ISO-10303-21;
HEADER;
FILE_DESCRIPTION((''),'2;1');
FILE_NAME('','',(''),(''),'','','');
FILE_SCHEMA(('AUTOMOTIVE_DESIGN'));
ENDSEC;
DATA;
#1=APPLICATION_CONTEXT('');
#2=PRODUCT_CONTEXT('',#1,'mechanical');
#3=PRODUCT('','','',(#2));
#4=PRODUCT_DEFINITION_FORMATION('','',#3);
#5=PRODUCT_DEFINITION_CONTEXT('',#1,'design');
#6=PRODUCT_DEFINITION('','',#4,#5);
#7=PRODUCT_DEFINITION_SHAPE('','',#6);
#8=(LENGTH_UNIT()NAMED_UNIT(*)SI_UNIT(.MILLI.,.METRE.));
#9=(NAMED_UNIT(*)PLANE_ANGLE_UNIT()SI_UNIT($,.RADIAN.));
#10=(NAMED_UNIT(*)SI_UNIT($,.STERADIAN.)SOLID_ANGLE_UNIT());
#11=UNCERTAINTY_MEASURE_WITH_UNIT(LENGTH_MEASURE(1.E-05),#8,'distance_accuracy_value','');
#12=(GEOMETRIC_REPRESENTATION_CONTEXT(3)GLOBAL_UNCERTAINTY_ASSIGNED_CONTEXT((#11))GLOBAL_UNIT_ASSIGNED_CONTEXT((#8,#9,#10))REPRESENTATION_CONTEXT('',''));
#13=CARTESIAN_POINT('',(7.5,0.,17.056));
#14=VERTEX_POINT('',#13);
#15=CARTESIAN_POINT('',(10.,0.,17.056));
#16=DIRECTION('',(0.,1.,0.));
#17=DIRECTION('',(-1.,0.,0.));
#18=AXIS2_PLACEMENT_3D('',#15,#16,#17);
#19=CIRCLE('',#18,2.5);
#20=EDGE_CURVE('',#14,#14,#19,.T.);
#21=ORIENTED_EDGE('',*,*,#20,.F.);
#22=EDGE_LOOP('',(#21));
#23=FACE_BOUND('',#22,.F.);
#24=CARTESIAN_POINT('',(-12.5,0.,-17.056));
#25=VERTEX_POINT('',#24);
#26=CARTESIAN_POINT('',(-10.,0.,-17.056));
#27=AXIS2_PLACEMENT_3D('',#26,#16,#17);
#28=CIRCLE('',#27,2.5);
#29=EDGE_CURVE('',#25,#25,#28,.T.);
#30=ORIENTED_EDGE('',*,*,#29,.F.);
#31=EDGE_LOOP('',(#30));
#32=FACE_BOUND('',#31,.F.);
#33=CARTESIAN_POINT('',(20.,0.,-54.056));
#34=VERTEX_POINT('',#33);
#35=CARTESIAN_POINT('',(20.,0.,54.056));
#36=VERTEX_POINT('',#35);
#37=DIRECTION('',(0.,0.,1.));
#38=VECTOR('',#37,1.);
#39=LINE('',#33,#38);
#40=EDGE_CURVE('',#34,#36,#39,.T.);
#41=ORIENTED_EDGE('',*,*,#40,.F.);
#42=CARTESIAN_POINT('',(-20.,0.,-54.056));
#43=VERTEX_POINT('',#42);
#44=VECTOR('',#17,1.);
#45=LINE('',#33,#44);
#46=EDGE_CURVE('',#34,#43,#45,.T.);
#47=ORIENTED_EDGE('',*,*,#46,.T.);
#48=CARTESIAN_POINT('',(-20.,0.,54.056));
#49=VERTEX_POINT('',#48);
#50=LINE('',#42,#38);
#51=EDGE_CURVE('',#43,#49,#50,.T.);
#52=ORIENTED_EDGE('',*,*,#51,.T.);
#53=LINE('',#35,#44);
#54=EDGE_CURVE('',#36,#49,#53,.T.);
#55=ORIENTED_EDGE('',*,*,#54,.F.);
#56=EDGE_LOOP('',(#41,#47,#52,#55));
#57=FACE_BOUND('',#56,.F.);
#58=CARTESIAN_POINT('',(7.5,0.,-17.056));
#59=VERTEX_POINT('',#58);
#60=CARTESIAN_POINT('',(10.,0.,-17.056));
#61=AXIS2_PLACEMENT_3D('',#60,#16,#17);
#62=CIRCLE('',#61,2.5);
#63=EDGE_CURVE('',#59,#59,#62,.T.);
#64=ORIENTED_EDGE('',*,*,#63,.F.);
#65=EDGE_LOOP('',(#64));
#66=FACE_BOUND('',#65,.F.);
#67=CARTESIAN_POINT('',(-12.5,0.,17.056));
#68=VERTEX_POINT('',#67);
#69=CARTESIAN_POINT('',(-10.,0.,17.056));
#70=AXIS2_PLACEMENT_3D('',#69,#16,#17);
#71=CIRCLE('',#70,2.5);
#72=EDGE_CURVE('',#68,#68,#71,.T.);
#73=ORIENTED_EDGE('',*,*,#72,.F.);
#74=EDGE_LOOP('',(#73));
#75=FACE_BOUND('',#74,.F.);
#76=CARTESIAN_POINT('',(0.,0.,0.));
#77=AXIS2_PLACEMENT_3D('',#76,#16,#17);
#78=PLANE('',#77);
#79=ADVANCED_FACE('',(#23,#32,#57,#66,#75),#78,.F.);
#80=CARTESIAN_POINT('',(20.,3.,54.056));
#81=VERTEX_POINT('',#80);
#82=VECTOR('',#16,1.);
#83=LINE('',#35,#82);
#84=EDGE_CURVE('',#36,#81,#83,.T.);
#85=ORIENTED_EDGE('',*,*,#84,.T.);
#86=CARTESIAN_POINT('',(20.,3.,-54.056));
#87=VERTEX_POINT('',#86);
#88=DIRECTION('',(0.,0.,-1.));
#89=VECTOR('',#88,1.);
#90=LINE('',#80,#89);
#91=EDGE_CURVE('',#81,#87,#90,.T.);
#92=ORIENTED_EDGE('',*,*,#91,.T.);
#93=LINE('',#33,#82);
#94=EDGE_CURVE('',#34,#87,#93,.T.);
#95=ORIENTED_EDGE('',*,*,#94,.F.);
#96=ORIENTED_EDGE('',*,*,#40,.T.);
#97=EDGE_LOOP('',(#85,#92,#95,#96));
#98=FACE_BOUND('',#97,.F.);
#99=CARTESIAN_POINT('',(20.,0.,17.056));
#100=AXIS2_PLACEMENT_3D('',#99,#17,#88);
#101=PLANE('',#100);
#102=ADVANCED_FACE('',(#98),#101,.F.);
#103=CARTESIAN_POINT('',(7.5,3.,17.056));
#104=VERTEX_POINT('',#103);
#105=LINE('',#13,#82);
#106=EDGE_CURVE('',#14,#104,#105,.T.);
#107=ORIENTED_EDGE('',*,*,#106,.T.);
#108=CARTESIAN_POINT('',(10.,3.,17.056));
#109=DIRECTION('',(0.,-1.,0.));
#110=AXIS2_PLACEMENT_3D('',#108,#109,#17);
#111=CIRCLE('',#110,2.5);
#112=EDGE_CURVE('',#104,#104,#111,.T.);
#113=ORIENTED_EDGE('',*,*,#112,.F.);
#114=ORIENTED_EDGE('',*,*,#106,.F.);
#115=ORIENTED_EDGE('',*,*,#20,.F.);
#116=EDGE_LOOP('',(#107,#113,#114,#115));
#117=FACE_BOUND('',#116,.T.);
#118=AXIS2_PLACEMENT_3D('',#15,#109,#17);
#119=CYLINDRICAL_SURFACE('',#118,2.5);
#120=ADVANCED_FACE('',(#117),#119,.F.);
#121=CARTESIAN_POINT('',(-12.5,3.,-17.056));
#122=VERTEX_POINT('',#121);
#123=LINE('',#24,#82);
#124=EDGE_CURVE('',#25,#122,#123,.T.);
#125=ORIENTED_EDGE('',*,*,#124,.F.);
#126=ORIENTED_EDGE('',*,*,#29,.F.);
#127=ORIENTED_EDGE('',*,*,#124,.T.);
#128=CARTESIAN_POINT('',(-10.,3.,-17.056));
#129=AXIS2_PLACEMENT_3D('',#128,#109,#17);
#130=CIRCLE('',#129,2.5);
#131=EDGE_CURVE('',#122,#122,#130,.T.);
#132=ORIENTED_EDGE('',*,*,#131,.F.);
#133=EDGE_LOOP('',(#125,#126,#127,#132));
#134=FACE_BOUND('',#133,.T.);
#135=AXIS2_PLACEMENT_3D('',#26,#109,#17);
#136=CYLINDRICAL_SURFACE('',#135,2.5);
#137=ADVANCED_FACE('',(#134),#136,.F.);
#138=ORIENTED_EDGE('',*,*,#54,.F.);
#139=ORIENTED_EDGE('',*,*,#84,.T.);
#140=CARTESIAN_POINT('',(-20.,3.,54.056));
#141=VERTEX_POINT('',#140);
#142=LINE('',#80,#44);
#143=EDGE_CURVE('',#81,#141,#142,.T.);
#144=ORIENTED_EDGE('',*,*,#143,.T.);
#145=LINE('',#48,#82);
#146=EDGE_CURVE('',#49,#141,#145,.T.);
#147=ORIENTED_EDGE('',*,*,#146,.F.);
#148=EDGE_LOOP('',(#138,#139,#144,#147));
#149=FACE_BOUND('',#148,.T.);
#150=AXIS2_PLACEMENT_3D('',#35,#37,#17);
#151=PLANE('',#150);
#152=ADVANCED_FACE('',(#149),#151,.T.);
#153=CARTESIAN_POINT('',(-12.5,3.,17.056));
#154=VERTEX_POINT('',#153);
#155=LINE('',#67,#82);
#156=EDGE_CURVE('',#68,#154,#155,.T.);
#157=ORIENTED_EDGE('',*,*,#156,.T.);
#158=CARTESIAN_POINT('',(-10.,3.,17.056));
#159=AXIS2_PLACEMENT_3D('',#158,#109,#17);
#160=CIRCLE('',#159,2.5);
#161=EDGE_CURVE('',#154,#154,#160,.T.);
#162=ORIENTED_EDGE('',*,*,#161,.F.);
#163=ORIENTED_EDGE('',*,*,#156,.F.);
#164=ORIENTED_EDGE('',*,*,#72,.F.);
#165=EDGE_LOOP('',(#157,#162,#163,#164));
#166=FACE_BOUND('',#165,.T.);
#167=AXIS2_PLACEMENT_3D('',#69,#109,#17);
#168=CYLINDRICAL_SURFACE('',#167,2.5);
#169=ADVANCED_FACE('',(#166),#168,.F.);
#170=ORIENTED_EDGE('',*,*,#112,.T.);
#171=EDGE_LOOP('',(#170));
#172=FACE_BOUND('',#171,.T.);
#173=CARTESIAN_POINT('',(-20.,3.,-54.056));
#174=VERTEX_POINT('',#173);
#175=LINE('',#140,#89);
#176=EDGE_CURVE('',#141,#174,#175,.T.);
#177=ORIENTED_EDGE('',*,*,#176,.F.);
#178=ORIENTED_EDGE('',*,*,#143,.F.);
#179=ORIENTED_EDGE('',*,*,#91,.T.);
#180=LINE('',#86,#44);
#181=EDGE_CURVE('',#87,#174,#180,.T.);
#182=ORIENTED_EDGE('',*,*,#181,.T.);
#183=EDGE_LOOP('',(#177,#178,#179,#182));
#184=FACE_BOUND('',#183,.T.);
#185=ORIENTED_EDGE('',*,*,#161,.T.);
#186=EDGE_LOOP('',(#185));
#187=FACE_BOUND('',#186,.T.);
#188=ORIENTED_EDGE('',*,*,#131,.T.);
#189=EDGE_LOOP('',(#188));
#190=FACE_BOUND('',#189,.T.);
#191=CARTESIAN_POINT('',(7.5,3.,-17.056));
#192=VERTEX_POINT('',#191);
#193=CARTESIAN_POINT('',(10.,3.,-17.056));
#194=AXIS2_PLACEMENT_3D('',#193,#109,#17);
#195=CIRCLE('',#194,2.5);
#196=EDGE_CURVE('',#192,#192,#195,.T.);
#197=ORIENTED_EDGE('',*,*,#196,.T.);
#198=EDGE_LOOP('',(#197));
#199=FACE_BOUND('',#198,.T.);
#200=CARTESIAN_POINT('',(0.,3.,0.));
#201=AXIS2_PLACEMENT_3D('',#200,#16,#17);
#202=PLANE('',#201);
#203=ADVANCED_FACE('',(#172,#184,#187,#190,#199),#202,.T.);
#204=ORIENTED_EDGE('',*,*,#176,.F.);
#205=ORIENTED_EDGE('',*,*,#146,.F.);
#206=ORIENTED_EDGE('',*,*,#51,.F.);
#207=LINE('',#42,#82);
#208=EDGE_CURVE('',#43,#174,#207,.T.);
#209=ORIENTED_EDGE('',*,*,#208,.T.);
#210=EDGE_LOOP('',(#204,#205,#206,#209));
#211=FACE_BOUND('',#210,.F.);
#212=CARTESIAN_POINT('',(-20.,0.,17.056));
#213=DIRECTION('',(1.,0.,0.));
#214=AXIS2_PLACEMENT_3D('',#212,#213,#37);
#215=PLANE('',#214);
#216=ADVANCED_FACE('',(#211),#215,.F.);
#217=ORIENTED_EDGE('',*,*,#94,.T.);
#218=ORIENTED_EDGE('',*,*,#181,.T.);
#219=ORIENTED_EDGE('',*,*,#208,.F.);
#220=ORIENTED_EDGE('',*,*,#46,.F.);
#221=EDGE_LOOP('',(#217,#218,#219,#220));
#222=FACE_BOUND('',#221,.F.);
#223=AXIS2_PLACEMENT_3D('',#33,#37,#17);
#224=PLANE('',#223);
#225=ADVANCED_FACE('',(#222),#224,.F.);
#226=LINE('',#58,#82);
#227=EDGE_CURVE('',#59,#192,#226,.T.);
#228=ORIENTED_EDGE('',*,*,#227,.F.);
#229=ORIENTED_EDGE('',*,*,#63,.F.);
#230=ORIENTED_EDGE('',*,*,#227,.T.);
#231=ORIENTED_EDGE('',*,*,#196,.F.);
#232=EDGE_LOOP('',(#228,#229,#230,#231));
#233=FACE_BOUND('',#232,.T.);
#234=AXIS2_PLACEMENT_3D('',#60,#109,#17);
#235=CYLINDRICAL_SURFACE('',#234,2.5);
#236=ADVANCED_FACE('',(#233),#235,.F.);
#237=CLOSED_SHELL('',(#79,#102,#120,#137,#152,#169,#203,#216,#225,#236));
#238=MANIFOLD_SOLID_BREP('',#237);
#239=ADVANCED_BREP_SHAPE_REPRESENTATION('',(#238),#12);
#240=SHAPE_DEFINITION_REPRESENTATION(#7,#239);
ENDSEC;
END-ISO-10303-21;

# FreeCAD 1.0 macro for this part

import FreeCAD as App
import Part
import Sketcher
from FreeCAD import Vector
Q = App.Units.Quantity

doc = App.newDocument("Part")
body = doc.addObject("PartDesign::Body", "Body")

sketch1 = body.newObject("Sketcher::SketchObject", "Sketch")
sketch1.AttachmentSupport = (doc.getObject("XZ_Plane"), [""])
sketch1.MapMode = "FlatFace"
sketch1.addGeometry(Part.LineSegment(Vector(-20, 54.1, 0), Vector(20, 54.1, 0)), False)
sketch1.addGeometry(Part.LineSegment(Vector(20, 54.1, 0), Vector(20, -54.1, 0)), False)
sketch1.addGeometry(Part.LineSegment(Vector(20, -54.1, 0), Vector(-20, -54.1, 0)), False)
sketch1.addGeometry(Part.LineSegment(Vector(-20, -54.1, 0), Vector(-20, 54.1, 0)), False)
sketch1.addGeometry(Part.Circle(Vector(-10, 17.1, 0), Vector(0, 0, 1), 2.5), False)
sketch1.addGeometry(Part.Circle(Vector(-10, -17.1, 0), Vector(0, 0, 1), 2.5), False)
sketch1.addGeometry(Part.Circle(Vector(10, -17.1, 0), Vector(0, 0, 1), 2.5), False)
sketch1.addGeometry(Part.Circle(Vector(10, 17.1, 0), Vector(0, 0, 1), 2.5), False)
sketch1.addConstraint(Sketcher.Constraint("Coincident", 0, 2, 1, 1))
sketch1.addConstraint(Sketcher.Constraint("Coincident", 1, 2, 2, 1))
sketch1.addConstraint(Sketcher.Constraint("Coincident", 2, 2, 3, 1))
sketch1.addConstraint(Sketcher.Constraint("Coincident", 3, 2, 0, 1))
sketch1.addConstraint(Sketcher.Constraint("Horizontal", 0))
sketch1.addConstraint(Sketcher.Constraint("Vertical", 1))
sketch1.addConstraint(Sketcher.Constraint("Horizontal", 2))
sketch1.addConstraint(Sketcher.Constraint("Vertical", 3))
sketch1.addConstraint(Sketcher.Constraint("Equal", 4, 5))
sketch1.addConstraint(Sketcher.Constraint("Equal", 5, 6))
sketch1.addConstraint(Sketcher.Constraint("Equal", 6, 7))
sketch1.addConstraint(Sketcher.Constraint("Symmetric", 4, 3, 6, 3, -1, 1))
sketch1.addConstraint(Sketcher.Constraint("Symmetric", 5, 3, 7, 3, -1, 1))
sketch1.addConstraint(Sketcher.Constraint("Symmetric", 0, 2, 2, 2, -1, 1))
sketch1.addConstraint(Sketcher.Constraint("Symmetric", 5, 3, 6, 3, -2))
sketch1.addConstraint(Sketcher.Constraint("Diameter", 4, Q("5 mm")))
sketch1.addConstraint(Sketcher.Constraint("DistanceX", 0, 1, 0, 2, Q("40 mm")))
sketch1.addConstraint(Sketcher.Constraint("DistanceX", 4, 3, -1, 1, Q("10 mm")))
sketch1.addConstraint(Sketcher.Constraint("DistanceY", 7, 3, 0, 2, Q("37 mm")))
sketch1.addConstraint(Sketcher.Constraint("DistanceY", 1, 2, 1, 1, Q("108.112 mm")))
pad1 = body.newObject("PartDesign::Pad", "Pad")
pad1.Profile = sketch1
pad1.Length = 3
pad1.Reversed = True

doc.recompute()
